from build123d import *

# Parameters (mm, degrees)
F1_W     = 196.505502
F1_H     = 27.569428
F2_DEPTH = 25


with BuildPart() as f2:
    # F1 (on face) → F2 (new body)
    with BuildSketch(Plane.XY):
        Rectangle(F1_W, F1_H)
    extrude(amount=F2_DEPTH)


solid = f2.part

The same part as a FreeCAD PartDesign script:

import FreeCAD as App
import Part
import Sketcher


def add_polygon(sketch, points):
    """Adds a closed chain of lines whose ends are joined by coincident constraints."""
    first, n = sketch.GeometryCount, len(points)
    for a, b in zip(points, points[1:] + points[:1]):
        sketch.addGeometry(Part.LineSegment(App.Vector(*a, 0), App.Vector(*b, 0)), False)
    for i in range(n):
        sketch.addConstraint(Sketcher.Constraint("Coincident", first + i, 2, first + (i + 1) % n, 1))

doc = App.newDocument("Part")
body = doc.addObject("PartDesign::Body", "Body")

# Sketch on XY plane
sketch1 = body.newObject("Sketcher::SketchObject", "Sketch")
sketch1.AttachmentSupport = (doc.getObject("XY_Plane"), [""])
sketch1.MapMode = "FlatFace"
add_polygon(sketch1, [(-98, 14), (-98, -14), (98, -14), (98, 14)])  # lines 0-3
sketch1.addConstraint([
    Sketcher.Constraint("Vertical", 0),
    Sketcher.Constraint("Horizontal", 1),
    Sketcher.Constraint("Vertical", 2),
    Sketcher.Constraint("Horizontal", 3),
    Sketcher.Constraint("Symmetric", 0, 2, 2, 2, -1, 1),
    Sketcher.Constraint("DistanceX", 1, 1, 1, 2, 196.505502),
    Sketcher.Constraint("DistanceY", 0, 2, 0, 1, 27.569428),
])
pad1 = body.newObject("PartDesign::Pad", "Pad")
pad1.Profile = sketch1
pad1.Length = 25

doc.recompute()
